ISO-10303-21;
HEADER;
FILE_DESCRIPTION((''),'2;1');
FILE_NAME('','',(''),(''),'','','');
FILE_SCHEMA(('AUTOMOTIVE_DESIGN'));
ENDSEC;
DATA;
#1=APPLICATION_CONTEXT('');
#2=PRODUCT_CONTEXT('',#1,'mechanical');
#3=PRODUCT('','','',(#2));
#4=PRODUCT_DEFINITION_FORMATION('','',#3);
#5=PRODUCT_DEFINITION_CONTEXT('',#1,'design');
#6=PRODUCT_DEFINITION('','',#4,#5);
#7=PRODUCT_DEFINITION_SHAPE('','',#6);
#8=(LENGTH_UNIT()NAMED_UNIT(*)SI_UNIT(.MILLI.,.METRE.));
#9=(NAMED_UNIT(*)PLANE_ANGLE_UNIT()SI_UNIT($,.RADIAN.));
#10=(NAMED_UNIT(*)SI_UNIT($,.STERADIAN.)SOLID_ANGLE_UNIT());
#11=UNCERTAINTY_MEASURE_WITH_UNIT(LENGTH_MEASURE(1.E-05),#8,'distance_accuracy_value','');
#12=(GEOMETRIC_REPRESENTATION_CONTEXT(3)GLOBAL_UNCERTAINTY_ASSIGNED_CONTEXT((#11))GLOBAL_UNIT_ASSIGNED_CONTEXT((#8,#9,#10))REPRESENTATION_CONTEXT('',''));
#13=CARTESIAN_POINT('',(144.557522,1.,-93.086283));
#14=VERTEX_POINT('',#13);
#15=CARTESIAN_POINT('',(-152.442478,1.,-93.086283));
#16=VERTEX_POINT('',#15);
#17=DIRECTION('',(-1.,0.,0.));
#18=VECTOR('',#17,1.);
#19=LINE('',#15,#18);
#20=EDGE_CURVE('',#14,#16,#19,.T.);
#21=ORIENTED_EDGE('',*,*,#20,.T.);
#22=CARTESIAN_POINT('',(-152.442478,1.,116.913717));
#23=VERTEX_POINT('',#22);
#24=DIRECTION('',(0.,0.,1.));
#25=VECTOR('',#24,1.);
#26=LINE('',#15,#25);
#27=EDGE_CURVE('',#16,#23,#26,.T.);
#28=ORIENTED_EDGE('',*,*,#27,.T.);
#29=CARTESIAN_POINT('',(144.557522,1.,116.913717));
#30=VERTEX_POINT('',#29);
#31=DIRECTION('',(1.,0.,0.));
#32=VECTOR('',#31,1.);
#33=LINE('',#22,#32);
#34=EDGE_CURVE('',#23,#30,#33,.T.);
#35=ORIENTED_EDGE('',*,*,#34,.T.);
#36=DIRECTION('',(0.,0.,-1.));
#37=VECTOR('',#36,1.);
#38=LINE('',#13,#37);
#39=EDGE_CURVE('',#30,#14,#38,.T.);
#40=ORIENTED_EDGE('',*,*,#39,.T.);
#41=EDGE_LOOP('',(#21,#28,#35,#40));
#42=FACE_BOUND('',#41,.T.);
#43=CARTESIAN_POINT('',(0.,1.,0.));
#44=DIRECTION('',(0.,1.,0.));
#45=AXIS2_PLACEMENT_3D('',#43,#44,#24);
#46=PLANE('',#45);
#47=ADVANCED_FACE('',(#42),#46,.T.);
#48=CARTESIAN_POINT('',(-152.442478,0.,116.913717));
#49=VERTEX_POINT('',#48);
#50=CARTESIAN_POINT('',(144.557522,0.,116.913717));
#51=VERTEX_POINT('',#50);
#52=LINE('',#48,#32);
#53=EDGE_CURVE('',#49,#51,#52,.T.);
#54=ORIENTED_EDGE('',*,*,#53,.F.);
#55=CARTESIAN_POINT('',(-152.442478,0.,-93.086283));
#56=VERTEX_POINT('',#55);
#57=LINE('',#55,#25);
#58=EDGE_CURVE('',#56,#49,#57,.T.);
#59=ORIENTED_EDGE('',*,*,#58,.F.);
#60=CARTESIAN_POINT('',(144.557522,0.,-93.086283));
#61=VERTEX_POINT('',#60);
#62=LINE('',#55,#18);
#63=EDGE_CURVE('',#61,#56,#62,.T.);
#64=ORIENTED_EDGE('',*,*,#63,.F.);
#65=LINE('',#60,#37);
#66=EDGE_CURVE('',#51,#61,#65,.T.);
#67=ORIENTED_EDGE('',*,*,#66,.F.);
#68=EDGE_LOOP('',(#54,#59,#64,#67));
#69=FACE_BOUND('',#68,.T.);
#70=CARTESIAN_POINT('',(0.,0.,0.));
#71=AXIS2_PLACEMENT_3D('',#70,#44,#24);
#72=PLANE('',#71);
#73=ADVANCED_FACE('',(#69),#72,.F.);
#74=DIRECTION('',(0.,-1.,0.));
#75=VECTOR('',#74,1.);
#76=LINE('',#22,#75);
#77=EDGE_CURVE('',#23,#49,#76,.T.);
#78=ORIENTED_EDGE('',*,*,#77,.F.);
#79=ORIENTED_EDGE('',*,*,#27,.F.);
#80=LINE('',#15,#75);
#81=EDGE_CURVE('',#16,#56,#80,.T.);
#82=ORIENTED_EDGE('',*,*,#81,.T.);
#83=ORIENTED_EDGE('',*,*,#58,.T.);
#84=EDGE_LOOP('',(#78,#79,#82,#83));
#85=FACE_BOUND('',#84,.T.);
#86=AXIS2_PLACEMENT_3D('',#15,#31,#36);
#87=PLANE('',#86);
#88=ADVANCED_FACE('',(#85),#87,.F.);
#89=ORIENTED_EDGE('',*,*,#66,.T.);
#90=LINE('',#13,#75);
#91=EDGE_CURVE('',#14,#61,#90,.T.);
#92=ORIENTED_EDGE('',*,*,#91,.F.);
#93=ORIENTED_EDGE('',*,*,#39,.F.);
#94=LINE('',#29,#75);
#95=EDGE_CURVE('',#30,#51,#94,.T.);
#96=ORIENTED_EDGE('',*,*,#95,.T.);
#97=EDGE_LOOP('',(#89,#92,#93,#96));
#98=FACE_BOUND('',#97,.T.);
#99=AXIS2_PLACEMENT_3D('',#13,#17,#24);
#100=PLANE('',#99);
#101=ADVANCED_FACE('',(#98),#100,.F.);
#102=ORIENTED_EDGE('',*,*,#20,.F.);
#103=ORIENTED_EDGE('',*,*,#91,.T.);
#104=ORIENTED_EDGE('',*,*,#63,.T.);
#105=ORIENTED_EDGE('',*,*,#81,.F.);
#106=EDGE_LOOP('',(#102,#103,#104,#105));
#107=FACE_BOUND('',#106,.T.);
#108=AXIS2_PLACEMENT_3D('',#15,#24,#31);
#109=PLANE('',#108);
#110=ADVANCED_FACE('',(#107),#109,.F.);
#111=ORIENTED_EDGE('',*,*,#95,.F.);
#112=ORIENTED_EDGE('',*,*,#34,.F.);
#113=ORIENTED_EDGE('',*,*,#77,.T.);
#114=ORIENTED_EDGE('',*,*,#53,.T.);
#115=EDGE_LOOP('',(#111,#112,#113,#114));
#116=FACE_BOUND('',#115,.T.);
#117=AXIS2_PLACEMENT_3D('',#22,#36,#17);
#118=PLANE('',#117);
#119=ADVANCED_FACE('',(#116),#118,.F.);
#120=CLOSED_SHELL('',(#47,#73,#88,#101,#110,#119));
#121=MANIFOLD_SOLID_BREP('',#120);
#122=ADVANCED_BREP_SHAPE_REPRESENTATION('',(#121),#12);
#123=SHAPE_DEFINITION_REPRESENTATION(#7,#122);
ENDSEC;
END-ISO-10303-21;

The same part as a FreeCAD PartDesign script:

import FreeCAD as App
import Part
import Sketcher

V = App.Vector

doc = App.newDocument("Part")
body = doc.addObject("PartDesign::Body", "Body")

# Sketch on XZ plane
sketch1 = body.newObject("Sketcher::SketchObject", "Sketch")
sketch1.AttachmentSupport = (doc.getObject("XZ_Plane"), [""])
sketch1.MapMode = "FlatFace"
sketch1.addGeometry([
    Part.LineSegment(V(-152, -93, 0), V(-152, 117, 0)),
    Part.LineSegment(V(-152, 117, 0), V(145, 117, 0)),
    Part.LineSegment(V(145, 117, 0), V(145, -93, 0)),
    Part.LineSegment(V(145, -93, 0), V(-152, -93, 0)),
], False)
sketch1.addConstraint([
    Sketcher.Constraint("Coincident", 0, 2, 1, 1),
    Sketcher.Constraint("Coincident", 1, 2, 2, 1),
    Sketcher.Constraint("Coincident", 2, 2, 3, 1),
    Sketcher.Constraint("Coincident", 3, 2, 0, 1),
    Sketcher.Constraint("Vertical", 0),
    Sketcher.Constraint("Horizontal", 1),
    Sketcher.Constraint("Vertical", 2),
    Sketcher.Constraint("Horizontal", 3),
    Sketcher.Constraint("DistanceX", 1, 1, 1, 2, 297.0),
    Sketcher.Constraint("DistanceY", 0, 1, 0, 2, 210.0),
    Sketcher.Constraint("DistanceX", 0, 2, -1, 1, 152.442478),
    Sketcher.Constraint("DistanceY", -1, 1, 0, 2, 116.913717),
])
pad1 = body.newObject("PartDesign::Pad", "Pad")
pad1.Profile = sketch1
pad1.Length = 1
pad1.Reversed = True

doc.recompute()
